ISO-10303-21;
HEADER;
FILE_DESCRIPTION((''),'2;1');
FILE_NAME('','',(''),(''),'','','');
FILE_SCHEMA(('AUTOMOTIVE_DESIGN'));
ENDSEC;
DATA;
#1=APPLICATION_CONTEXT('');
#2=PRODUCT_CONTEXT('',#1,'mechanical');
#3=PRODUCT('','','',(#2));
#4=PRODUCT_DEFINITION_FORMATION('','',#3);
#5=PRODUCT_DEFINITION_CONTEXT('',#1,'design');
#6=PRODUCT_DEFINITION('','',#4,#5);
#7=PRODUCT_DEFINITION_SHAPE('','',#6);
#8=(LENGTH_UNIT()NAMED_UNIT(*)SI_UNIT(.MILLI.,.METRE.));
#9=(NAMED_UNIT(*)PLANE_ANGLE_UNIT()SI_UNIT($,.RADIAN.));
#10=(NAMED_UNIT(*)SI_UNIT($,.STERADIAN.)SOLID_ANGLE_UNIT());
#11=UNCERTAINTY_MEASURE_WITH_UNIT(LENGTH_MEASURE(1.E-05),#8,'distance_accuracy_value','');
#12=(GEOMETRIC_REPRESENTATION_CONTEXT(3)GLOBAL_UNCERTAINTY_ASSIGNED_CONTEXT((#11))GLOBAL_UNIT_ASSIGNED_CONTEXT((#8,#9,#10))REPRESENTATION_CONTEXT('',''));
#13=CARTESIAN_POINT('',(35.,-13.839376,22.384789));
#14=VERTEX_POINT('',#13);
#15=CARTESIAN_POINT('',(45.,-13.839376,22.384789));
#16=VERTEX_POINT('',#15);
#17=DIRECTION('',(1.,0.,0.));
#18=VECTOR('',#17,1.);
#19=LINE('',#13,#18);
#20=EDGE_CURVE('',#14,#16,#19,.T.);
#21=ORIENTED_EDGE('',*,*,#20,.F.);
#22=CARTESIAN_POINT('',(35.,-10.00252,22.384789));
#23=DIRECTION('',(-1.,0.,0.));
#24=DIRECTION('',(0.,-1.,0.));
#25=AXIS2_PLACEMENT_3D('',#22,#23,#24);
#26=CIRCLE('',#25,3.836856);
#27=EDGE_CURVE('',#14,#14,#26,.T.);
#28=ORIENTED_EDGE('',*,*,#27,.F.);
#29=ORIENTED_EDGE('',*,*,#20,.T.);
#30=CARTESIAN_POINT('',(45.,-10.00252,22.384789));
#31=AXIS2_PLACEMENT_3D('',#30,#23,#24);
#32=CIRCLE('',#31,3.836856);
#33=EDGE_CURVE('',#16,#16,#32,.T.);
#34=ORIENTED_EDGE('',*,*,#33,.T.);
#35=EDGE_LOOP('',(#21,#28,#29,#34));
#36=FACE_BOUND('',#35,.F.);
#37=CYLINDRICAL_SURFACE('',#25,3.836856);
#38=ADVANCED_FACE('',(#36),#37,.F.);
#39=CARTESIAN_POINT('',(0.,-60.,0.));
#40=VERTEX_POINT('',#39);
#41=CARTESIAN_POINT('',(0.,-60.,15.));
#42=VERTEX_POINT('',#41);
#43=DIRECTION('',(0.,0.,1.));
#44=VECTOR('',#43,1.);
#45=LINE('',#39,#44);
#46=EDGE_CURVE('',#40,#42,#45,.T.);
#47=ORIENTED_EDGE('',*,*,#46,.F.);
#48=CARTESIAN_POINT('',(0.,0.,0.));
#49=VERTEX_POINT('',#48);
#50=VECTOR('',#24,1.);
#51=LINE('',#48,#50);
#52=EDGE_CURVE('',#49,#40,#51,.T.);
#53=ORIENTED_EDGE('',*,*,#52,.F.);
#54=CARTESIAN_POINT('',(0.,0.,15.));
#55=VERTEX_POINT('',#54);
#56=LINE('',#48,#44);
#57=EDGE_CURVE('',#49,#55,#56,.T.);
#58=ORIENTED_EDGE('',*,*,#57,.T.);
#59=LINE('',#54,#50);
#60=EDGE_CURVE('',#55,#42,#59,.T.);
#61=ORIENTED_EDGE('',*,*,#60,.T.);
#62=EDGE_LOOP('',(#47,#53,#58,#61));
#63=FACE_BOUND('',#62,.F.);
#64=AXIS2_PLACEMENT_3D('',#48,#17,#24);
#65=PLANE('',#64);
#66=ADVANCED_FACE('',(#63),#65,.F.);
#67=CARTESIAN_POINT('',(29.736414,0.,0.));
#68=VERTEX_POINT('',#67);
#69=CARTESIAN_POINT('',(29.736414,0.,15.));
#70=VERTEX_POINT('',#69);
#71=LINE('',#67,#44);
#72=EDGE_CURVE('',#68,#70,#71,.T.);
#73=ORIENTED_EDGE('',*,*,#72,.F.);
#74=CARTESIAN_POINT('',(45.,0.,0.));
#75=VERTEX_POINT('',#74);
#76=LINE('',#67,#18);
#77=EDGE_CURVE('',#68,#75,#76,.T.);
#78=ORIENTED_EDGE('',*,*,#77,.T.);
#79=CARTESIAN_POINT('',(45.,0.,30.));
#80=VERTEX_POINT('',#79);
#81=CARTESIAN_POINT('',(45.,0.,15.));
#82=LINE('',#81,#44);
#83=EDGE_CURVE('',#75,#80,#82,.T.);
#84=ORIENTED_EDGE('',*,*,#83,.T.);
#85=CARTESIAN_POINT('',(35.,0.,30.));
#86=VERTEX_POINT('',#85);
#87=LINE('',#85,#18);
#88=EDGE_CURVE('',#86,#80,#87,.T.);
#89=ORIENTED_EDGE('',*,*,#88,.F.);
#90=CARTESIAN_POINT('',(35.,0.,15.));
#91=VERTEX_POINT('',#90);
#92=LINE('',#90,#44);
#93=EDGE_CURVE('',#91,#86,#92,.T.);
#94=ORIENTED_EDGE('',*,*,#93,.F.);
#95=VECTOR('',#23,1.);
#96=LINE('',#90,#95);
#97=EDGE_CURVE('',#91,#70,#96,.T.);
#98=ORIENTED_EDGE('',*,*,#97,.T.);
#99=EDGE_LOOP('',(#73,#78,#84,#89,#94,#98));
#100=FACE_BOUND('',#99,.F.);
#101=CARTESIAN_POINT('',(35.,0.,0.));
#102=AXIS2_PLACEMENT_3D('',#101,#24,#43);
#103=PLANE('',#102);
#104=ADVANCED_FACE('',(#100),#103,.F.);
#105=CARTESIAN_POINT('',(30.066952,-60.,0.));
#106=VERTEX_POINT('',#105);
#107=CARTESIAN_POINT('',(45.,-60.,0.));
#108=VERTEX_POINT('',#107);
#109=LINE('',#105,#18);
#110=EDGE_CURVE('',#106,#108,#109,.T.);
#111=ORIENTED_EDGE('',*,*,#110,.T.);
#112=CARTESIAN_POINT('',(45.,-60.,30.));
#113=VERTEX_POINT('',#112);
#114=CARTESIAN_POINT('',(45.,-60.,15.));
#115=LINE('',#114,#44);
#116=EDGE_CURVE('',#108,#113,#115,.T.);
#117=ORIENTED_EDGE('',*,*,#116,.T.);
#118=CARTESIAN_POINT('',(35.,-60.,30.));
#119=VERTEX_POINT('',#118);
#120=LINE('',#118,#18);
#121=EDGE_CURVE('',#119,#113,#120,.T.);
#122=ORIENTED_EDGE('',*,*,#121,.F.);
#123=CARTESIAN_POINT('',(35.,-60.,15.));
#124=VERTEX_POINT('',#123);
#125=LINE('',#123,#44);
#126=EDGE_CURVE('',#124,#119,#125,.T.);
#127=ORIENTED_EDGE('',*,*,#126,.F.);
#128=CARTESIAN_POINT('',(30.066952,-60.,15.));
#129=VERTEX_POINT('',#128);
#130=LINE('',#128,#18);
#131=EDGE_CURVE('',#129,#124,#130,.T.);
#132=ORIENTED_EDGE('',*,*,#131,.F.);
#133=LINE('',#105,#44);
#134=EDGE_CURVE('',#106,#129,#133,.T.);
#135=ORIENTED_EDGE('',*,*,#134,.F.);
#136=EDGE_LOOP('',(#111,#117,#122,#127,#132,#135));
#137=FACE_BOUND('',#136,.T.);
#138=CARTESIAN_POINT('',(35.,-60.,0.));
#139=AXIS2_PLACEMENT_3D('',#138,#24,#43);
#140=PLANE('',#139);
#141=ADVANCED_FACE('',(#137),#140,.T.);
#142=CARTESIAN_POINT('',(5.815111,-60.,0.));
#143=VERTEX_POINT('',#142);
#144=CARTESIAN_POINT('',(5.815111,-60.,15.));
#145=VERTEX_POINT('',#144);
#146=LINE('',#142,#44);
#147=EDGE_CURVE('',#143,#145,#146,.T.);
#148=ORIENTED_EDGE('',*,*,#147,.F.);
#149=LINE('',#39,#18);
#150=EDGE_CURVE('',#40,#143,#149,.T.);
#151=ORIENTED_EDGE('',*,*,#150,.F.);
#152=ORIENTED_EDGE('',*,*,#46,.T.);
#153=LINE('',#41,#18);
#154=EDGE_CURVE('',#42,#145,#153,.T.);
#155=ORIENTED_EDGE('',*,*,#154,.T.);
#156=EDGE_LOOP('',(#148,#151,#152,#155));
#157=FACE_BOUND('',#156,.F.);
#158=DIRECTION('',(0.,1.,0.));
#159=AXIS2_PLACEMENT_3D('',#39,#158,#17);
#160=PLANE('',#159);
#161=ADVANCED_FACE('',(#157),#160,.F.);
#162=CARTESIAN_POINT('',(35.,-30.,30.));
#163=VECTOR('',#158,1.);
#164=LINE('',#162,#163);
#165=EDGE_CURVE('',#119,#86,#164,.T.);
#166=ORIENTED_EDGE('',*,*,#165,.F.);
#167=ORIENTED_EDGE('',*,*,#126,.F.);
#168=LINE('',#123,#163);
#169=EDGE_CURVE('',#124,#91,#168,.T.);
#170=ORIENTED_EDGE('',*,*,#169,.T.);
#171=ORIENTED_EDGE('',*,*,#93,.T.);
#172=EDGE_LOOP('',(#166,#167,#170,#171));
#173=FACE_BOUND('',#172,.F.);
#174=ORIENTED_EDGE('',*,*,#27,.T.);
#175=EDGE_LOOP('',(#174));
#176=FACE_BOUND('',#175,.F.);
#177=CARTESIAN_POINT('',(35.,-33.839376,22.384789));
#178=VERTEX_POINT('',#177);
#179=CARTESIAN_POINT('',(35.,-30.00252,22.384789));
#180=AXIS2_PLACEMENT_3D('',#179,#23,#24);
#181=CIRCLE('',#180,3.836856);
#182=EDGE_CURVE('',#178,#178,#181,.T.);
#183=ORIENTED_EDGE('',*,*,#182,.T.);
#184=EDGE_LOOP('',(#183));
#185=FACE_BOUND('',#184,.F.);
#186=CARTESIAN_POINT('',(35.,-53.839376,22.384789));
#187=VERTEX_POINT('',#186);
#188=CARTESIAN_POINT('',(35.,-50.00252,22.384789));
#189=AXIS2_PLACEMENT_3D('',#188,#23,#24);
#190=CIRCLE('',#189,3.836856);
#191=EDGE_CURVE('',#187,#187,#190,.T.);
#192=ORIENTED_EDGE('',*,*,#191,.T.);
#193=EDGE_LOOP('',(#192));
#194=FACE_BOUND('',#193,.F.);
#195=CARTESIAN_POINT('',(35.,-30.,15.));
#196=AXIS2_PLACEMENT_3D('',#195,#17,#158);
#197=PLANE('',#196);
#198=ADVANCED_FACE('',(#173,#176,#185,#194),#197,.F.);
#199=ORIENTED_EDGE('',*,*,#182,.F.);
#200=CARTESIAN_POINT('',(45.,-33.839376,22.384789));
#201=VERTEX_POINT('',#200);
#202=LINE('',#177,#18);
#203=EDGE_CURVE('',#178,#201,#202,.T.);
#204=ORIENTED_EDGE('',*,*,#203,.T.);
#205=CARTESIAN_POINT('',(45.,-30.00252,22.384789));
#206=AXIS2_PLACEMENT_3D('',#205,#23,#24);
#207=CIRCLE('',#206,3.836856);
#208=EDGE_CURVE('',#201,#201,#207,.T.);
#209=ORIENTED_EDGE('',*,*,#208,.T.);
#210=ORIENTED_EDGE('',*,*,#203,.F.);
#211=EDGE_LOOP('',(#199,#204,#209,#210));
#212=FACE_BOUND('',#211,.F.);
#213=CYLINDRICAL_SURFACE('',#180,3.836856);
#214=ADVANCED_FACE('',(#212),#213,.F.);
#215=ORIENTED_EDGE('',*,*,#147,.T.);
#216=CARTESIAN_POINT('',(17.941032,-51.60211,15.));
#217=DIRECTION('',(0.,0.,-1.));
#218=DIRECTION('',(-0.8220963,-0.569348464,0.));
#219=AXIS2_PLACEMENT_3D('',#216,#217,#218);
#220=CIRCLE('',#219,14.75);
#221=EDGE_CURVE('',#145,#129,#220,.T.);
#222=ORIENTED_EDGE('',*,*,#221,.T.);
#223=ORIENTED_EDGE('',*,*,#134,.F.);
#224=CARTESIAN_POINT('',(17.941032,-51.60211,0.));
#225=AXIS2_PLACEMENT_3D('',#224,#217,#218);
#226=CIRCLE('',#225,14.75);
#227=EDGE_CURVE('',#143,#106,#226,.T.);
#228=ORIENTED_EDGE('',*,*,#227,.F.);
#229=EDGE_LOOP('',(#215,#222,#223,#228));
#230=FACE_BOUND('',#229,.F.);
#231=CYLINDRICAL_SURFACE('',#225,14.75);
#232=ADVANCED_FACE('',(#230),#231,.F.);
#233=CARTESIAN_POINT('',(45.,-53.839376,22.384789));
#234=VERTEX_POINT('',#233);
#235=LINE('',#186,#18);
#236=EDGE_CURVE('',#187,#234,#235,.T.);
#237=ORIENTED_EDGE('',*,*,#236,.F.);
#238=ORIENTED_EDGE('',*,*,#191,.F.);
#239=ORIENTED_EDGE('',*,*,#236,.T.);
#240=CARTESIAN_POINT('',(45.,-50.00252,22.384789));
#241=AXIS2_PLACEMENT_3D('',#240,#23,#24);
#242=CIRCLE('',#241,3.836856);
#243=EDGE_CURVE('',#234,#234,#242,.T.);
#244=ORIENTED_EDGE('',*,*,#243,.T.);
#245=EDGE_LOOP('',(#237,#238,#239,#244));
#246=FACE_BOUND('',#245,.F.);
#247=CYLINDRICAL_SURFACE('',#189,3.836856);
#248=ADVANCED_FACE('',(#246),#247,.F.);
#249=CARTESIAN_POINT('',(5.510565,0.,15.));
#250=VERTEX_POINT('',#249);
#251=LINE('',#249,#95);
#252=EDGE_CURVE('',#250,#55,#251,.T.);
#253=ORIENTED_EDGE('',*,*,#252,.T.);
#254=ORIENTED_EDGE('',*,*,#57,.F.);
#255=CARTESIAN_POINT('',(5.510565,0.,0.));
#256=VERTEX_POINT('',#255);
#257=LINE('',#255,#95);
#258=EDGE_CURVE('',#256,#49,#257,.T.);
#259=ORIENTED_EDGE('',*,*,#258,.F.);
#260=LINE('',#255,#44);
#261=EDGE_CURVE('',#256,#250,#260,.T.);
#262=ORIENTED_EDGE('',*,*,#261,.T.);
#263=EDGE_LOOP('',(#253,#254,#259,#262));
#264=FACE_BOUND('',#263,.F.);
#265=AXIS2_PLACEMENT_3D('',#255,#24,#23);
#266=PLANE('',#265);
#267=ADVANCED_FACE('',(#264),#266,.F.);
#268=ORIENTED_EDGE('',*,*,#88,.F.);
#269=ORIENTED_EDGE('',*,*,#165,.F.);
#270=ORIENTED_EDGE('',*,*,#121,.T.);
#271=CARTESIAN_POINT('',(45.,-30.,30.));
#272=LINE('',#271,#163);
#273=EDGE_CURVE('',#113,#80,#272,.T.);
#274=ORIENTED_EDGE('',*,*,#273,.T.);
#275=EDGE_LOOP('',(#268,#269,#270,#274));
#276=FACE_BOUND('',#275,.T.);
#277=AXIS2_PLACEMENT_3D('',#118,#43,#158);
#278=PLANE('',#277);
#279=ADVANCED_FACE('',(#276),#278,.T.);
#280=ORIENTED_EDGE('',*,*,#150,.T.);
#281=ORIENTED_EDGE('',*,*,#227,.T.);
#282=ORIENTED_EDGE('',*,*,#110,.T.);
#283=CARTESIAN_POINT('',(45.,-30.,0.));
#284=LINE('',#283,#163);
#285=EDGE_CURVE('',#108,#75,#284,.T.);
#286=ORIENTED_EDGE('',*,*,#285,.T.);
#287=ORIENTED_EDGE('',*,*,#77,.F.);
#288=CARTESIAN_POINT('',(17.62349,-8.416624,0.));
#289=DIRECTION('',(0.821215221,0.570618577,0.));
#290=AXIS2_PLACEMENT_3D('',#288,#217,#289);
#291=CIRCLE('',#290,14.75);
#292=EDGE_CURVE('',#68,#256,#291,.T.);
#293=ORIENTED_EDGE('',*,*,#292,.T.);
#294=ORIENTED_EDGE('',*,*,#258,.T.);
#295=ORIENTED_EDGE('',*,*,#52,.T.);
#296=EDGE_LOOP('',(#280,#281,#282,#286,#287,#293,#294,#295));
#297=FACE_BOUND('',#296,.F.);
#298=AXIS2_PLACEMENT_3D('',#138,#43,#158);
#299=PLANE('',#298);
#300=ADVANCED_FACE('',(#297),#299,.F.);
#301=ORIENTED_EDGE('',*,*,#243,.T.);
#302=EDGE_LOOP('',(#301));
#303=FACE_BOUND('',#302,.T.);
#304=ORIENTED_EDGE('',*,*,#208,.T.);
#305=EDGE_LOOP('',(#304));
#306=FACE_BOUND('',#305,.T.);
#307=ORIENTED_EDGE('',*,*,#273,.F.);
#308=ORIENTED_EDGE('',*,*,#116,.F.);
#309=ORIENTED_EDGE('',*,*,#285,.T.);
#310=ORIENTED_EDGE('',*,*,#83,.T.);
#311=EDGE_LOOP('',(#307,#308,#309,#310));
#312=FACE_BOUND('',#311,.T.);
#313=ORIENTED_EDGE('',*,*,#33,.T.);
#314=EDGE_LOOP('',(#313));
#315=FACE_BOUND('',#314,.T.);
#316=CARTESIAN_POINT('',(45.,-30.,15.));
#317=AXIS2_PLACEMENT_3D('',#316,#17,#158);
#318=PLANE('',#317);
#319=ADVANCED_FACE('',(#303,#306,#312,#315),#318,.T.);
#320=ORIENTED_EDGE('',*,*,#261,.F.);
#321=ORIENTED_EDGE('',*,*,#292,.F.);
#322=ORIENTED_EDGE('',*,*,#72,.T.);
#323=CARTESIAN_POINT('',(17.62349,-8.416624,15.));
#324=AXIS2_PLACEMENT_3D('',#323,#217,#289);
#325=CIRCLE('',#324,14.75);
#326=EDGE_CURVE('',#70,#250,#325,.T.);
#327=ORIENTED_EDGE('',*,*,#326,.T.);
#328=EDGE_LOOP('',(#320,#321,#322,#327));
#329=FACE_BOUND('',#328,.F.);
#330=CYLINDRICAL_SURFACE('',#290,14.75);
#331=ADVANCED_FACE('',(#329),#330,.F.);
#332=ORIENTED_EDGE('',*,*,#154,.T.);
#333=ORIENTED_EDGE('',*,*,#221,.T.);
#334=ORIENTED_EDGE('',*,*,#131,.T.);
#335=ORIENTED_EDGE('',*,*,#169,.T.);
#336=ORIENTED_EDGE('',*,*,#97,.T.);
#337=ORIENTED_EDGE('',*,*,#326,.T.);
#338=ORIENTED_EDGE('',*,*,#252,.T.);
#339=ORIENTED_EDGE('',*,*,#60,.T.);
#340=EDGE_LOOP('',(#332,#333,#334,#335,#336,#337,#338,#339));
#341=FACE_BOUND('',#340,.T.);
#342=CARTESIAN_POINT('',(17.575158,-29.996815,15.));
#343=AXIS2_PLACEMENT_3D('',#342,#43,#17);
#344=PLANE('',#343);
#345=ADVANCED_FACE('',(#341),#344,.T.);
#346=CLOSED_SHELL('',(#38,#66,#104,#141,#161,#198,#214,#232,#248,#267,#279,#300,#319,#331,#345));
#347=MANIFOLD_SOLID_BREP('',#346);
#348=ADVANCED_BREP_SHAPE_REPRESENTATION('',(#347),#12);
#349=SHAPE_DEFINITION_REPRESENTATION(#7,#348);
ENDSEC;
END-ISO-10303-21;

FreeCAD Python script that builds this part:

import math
import FreeCAD as App
import Part
import Sketcher


def add_polygon(sketch, points):
    """Adds a closed chain of lines whose ends are joined by coincident constraints."""
    first, n = sketch.GeometryCount, len(points)
    for a, b in zip(points, points[1:] + points[:1]):
        sketch.addGeometry(Part.LineSegment(App.Vector(*a, 0), App.Vector(*b, 0)), False)
    for i in range(n):
        sketch.addConstraint(Sketcher.Constraint("Coincident", first + i, 2, first + (i + 1) % n, 1))

doc = App.newDocument("Part")
body = doc.addObject("PartDesign::Body", "Body")

# Sketch on XY plane
sketch1 = body.newObject("Sketcher::SketchObject", "Sketch")
sketch1.AttachmentSupport = (doc.getObject("XY_Plane"), [""])
sketch1.MapMode = "FlatFace"
sketch1.addGeometry(Part.LineSegment(App.Vector(5.510565, 0, 0), App.Vector(0, 0, 0)), False)
sketch1.addGeometry(Part.LineSegment(App.Vector(0, 0, 0), App.Vector(0, -60, 0)), False)
sketch1.addGeometry(Part.LineSegment(App.Vector(0, -60, 0), App.Vector(5.815111, -60, 0)), False)
sketch1.addGeometry(Part.ArcOfCircle(Part.Circle(App.Vector(17.941032, -51.60211, 0), App.Vector(0, 0, 1), 14.75), math.radians(-34.704805), math.radians(214.704805)), False)
sketch1.addGeometry(Part.LineSegment(App.Vector(30.066952, -60, 0), App.Vector(35, -60, 0)), False)
sketch1.addGeometry(Part.LineSegment(App.Vector(35, -60, 0), App.Vector(35, 0, 0)), False)
sketch1.addGeometry(Part.LineSegment(App.Vector(35, 0, 0), App.Vector(29.736414, 0, 0)), False)
sketch1.addGeometry(Part.ArcOfCircle(Part.Circle(App.Vector(17.62349, -8.416624, 0), App.Vector(0, 0, 1), 14.75), math.radians(145.206628), math.radians(394.793372)), False)
sketch1.addConstraint(Sketcher.Constraint("Coincident", 0, 2, 1, 1))
sketch1.addConstraint(Sketcher.Constraint("Coincident", 1, 2, 2, 1))
sketch1.addConstraint(Sketcher.Constraint("Coincident", 2, 2, 3, 2))
sketch1.addConstraint(Sketcher.Constraint("Coincident", 3, 1, 4, 1))
sketch1.addConstraint(Sketcher.Constraint("Coincident", 4, 2, 5, 1))
sketch1.addConstraint(Sketcher.Constraint("Coincident", 5, 2, 6, 1))
sketch1.addConstraint(Sketcher.Constraint("Coincident", 6, 2, 7, 2))
sketch1.addConstraint(Sketcher.Constraint("Coincident", 7, 1, 0, 1))
sketch1.addConstraint(Sketcher.Constraint("Horizontal", 0))
sketch1.addConstraint(Sketcher.Constraint("Vertical", 1))
sketch1.addConstraint(Sketcher.Constraint("Horizontal", 2))
sketch1.addConstraint(Sketcher.Constraint("Horizontal", 4))
sketch1.addConstraint(Sketcher.Constraint("Vertical", 5))
sketch1.addConstraint(Sketcher.Constraint("Horizontal", 6))
sketch1.addConstraint(Sketcher.Constraint("Coincident", 0, 2, -1, 1))
sketch1.addConstraint(Sketcher.Constraint("Equal", 3, 7))
sketch1.addConstraint(Sketcher.Constraint("PointOnObject", 5, 2, -1))
sketch1.addConstraint(Sketcher.Constraint("Horizontal", 2, 2, 3, 1))
sketch1.addConstraint(Sketcher.Constraint("DistanceY", 1, 2, 1, 1, 60.0))
sketch1.addConstraint(Sketcher.Constraint("Radius", 3, 14.75))
sketch1.addConstraint(Sketcher.Constraint("DistanceX", -1, 1, 4, 2, 35.0))
sketch1.addConstraint(Sketcher.Constraint("DistanceX", 2, 1, 2, 2, 5.815111))
sketch1.addConstraint(Sketcher.Constraint("DistanceX", 0, 2, 0, 1, 5.510565))
sketch1.addConstraint(Sketcher.Constraint("DistanceX", 4, 1, 4, 2, 4.933048))
sketch1.addConstraint(Sketcher.Constraint("DistanceX", 6, 2, 6, 1, 5.263586))
pad1 = body.newObject("PartDesign::Pad", "Pad")
pad1.Profile = sketch1
pad1.Length = 15

# Sketch on YZ plane
sketch2 = body.newObject("Sketcher::SketchObject", "Sketch001")
sketch2.AttachmentSupport = (doc.getObject("YZ_Plane"), [""])
sketch2.MapMode = "FlatFace"
sketch2.AttachmentOffset = App.Placement(App.Vector(0, 0, 35), App.Rotation())
add_polygon(sketch2, [(-60, 30), (-60, 0), (0, 0), (0, 30)])  # lines 0-3
sketch2.addConstraint(Sketcher.Constraint("Vertical", 0))
sketch2.addConstraint(Sketcher.Constraint("Horizontal", 1))
sketch2.addConstraint(Sketcher.Constraint("Vertical", 2))
sketch2.addConstraint(Sketcher.Constraint("Horizontal", 3))
sketch2.addConstraint(Sketcher.Constraint("Coincident", 1, 2, -1, 1))
sketch2.addConstraint(Sketcher.Constraint("DistanceX", 1, 1, 1, 2, 60.0))
sketch2.addConstraint(Sketcher.Constraint("DistanceY", 0, 2, 0, 1, 30.0))
pad2 = body.newObject("PartDesign::Pad", "Pad001")
pad2.Profile = sketch2
pad2.Length = 10

# Sketch on YZ plane
sketch3 = body.newObject("Sketcher::SketchObject", "Sketch002")
sketch3.AttachmentSupport = (doc.getObject("YZ_Plane"), [""])
sketch3.MapMode = "FlatFace"
sketch3.AttachmentOffset = App.Placement(App.Vector(0, 0, 35), App.Rotation())
sketch3.addGeometry(Part.Circle(App.Vector(-10.00252, 22.384789, 0), App.Vector(0, 0, 1), 3.836856), False)
sketch3.addGeometry(Part.Circle(App.Vector(-30.00252, 22.384789, 0), App.Vector(0, 0, 1), 3.836856), False)
sketch3.addGeometry(Part.Circle(App.Vector(-50.00252, 22.384789, 0), App.Vector(0, 0, 1), 3.836856), False)
sketch3.addConstraint(Sketcher.Constraint("Equal", 0, 1))
sketch3.addConstraint(Sketcher.Constraint("Equal", 1, 2))
sketch3.addConstraint(Sketcher.Constraint("Horizontal", 0, 3, 1, 3))
sketch3.addConstraint(Sketcher.Constraint("Horizontal", 1, 3, 2, 3))
sketch3.addConstraint(Sketcher.Constraint("DistanceX", 1, 3, 0, 3, 20.0))
sketch3.addConstraint(Sketcher.Constraint("DistanceX", 2, 3, 1, 3, 20.0))
sketch3.addConstraint(Sketcher.Constraint("Diameter", 0, 7.673712))
sketch3.addConstraint(Sketcher.Constraint("DistanceX", 0, 3, -1, 1, 10.00252))
sketch3.addConstraint(Sketcher.Constraint("DistanceY", -1, 1, 0, 3, 22.384789))
pocket1 = body.newObject("PartDesign::Pocket", "Pocket")
pocket1.Profile = sketch3
pocket1.Length = 25
pocket1.Reversed = True

doc.recompute()
